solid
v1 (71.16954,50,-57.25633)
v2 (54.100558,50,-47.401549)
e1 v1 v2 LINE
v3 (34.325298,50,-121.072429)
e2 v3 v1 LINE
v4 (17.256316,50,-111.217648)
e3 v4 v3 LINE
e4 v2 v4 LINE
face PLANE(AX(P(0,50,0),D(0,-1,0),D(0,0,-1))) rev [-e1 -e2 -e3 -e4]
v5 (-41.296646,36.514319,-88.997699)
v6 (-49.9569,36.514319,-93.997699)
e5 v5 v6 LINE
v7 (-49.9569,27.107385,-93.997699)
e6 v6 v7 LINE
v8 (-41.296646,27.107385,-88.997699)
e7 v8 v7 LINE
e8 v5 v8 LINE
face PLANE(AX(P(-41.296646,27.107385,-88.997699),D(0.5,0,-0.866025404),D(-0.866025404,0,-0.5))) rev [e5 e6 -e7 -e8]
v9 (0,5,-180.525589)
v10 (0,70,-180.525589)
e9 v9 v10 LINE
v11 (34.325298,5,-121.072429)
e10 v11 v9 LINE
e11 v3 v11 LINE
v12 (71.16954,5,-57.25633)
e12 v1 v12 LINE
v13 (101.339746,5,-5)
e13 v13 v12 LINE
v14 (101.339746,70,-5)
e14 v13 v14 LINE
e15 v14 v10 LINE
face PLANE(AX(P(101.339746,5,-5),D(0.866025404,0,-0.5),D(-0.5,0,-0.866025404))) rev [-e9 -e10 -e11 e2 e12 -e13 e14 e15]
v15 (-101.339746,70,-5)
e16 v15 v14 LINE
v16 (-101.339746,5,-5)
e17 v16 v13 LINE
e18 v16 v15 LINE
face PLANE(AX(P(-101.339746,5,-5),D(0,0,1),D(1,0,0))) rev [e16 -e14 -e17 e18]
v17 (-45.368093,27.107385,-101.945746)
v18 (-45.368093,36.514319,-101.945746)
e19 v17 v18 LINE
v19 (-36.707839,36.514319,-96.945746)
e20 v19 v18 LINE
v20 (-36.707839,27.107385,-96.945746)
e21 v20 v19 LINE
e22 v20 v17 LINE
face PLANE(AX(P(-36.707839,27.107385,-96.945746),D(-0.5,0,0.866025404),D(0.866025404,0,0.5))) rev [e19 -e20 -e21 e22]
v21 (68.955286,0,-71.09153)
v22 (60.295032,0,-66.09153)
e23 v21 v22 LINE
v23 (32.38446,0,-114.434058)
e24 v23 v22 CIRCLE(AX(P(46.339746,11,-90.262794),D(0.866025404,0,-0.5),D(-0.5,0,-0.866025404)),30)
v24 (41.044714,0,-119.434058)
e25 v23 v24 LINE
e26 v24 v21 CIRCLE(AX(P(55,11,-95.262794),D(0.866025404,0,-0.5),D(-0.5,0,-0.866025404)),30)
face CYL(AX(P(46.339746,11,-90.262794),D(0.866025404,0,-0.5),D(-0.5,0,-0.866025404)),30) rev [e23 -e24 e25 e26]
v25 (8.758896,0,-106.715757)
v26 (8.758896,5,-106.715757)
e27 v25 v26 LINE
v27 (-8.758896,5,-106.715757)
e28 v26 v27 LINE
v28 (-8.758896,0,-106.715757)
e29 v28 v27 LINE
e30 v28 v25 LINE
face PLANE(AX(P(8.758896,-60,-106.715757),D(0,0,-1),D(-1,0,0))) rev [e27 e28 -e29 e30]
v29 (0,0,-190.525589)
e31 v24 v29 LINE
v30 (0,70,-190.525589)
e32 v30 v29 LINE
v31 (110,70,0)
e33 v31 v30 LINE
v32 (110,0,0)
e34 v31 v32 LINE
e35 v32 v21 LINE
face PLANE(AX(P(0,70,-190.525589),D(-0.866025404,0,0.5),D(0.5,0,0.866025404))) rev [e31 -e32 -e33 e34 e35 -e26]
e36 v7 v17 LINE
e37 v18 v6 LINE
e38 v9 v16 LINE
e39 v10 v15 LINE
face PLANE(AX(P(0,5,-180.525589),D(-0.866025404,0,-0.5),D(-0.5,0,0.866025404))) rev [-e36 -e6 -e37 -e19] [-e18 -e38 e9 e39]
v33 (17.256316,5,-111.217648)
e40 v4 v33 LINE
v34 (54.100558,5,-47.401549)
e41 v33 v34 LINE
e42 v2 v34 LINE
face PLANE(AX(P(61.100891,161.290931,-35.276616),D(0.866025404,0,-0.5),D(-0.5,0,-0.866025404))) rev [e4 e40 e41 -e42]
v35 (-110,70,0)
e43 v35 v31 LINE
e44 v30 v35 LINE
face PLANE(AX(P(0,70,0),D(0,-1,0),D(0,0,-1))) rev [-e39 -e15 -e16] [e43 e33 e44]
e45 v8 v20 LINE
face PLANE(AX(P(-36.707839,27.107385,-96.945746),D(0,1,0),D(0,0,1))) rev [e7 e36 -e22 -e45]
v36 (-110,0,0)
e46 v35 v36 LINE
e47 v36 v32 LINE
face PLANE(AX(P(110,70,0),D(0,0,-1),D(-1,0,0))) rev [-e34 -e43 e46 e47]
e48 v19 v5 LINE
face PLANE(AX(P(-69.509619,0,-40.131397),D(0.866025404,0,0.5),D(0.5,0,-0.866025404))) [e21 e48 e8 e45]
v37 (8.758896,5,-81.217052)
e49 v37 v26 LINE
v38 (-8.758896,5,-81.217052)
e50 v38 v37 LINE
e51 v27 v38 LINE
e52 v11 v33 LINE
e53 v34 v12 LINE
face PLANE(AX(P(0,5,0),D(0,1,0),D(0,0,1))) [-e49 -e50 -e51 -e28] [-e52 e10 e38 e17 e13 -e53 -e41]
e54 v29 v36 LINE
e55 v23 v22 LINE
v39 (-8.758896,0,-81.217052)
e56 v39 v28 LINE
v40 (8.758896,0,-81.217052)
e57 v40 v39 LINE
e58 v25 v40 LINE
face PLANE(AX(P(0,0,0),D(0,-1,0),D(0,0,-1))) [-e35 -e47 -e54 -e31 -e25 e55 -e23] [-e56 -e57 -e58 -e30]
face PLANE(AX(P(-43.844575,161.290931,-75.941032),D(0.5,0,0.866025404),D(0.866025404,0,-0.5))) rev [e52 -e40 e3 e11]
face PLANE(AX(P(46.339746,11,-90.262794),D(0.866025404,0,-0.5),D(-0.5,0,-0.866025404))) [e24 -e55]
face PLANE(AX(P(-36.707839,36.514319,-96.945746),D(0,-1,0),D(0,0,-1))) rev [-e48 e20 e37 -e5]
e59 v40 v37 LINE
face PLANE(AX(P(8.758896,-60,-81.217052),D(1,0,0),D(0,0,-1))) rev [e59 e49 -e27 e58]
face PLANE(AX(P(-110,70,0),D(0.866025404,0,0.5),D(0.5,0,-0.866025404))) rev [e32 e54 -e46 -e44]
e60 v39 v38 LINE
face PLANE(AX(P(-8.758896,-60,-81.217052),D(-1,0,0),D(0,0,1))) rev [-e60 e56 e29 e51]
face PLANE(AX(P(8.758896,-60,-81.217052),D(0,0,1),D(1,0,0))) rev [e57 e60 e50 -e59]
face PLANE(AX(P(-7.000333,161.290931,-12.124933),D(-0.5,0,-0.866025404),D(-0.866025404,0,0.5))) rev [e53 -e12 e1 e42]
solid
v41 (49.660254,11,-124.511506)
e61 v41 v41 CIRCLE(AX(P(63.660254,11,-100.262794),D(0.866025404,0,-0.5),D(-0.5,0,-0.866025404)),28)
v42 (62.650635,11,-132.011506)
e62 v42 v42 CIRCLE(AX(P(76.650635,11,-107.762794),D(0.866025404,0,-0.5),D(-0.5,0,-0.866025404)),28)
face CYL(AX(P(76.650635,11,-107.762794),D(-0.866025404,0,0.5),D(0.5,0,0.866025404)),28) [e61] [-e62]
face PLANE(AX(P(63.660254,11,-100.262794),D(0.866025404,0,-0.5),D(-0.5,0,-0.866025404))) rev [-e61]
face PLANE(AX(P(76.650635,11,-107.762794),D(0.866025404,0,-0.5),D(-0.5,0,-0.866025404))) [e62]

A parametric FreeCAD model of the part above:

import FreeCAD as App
import Part
import Sketcher

V = App.Vector
Q = App.Units.Quantity

doc = App.newDocument("Part")
body = doc.addObject("PartDesign::Body", "Body")

# Sketch on XZ plane
sketch1 = body.newObject("Sketcher::SketchObject", "Sketch")
sketch1.AttachmentSupport = (doc.getObject("XZ_Plane"), [""])
sketch1.MapMode = "FlatFace"
sketch1.addGeometry([
    Part.LineSegment(V(-110, 0, 0), V(110, 0, 0)),
    Part.LineSegment(V(110, 0, 0), V(0, -191, 0)),
    Part.LineSegment(V(0, -191, 0), V(-110, 0, 0)),
], False)
sketch1.addConstraint([
    Sketcher.Constraint("Coincident", 0, 2, 1, 1),
    Sketcher.Constraint("Coincident", 1, 2, 2, 1),
    Sketcher.Constraint("Coincident", 2, 2, 0, 1),
    Sketcher.Constraint("Horizontal", 0),
    Sketcher.Constraint("Symmetric", 0, 2, 2, 2, -1, 1),
    Sketcher.Constraint("PointOnObject", 1, 2, -2),
    Sketcher.Constraint("DistanceX", 0, 1, 0, 2, Q("220 mm")),
    Sketcher.Constraint("Angle", 1, Q("-120 deg")),
])
pad1 = body.newObject("PartDesign::Pad", "Pad")
pad1.Profile = sketch1
pad1.Length = 70
pad1.Reversed = True

# Sketch on XZ plane
sketch2 = body.newObject("Sketcher::SketchObject", "Sketch001")
sketch2.AttachmentSupport = (doc.getObject("XZ_Plane"), [""])
sketch2.MapMode = "FlatFace"
sketch2.AttachmentOffset = App.Placement(V(0, 0, -70), App.Rotation())
sketch2.addGeometry([
    Part.LineSegment(V(-101, -5, 0), V(101, -5, 0)),
    Part.LineSegment(V(101, -5, 0), V(0, -181, 0)),
    Part.LineSegment(V(0, -181, 0), V(-101, -5, 0)),
], False)
sketch2.addConstraint([
    Sketcher.Constraint("Coincident", 0, 2, 1, 1),
    Sketcher.Constraint("Coincident", 1, 2, 2, 1),
    Sketcher.Constraint("Coincident", 2, 2, 0, 1),
    Sketcher.Constraint("Horizontal", 0),
    Sketcher.Constraint("PointOnObject", 1, 2, -2),
    Sketcher.Constraint("Equal", 1, 2),
    Sketcher.Constraint("Angle", 1, Q("-120 deg")),
    Sketcher.Constraint("DistanceY", 0, 2, -1, 1, Q("5 mm")),
    Sketcher.Constraint("DistanceX", 0, 1, 0, 2, Q("202.679492 mm")),
])
pocket1 = body.newObject("PartDesign::Pocket", "Pocket")
pocket1.Profile = sketch2
pocket1.Length = 65
pocket1.Reversed = True

# Sketch on an angled plane
sketch3 = body.newObject("Sketcher::SketchObject", "Sketch002")
sketch3.Placement = App.Placement(V(82.5, 0, -47.631397), App.Rotation(V(-0.5, 0, -0.866025404), V(0, 1, 0), V(0.866025404, 0, -0.5), "ZXY"))
sketch3.addGeometry(Part.Circle(V(55, 11, 0), V(0, 0, 1), 2), False)
sketch3.addConstraint([
    Sketcher.Constraint("Diameter", 0, Q("4 mm")),
    Sketcher.Constraint("DistanceX", -1, 1, 0, 3, Q("55 mm")),
    Sketcher.Constraint("DistanceY", -1, 1, 0, 3, Q("11 mm")),
])
pocket2 = body.newObject("PartDesign::Pocket", "Pocket001")
pocket2.Profile = sketch3
pocket2.Length = 65

# Sketch on XZ plane
sketch4 = body.newObject("Sketcher::SketchObject", "Sketch003")
sketch4.AttachmentSupport = (doc.getObject("XZ_Plane"), [""])
sketch4.MapMode = "FlatFace"
sketch4.AttachmentOffset = App.Placement(V(0, 0, -5), App.Rotation())
sketch4.addGeometry([
    Part.LineSegment(V(-9, -107, 0), V(-9, -81, 0)),
    Part.LineSegment(V(-9, -81, 0), V(9, -81, 0)),
    Part.LineSegment(V(9, -81, 0), V(9, -107, 0)),
    Part.LineSegment(V(9, -107, 0), V(-9, -107, 0)),
], False)
sketch4.addConstraint([
    Sketcher.Constraint("Coincident", 0, 2, 1, 1),
    Sketcher.Constraint("Coincident", 1, 2, 2, 1),
    Sketcher.Constraint("Coincident", 2, 2, 3, 1),
    Sketcher.Constraint("Coincident", 3, 2, 0, 1),
    Sketcher.Constraint("Vertical", 0),
    Sketcher.Constraint("Horizontal", 1),
    Sketcher.Constraint("Vertical", 2),
    Sketcher.Constraint("Horizontal", 3),
    Sketcher.Constraint("DistanceX", 1, 1, 1, 2, Q("17.517792 mm")),
    Sketcher.Constraint("DistanceY", 0, 1, 0, 2, Q("25.498705 mm")),
    Sketcher.Constraint("DistanceX", 0, 2, -1, 1, Q("8.758896 mm")),
    Sketcher.Constraint("DistanceY", 0, 2, -1, 1, Q("81.217052 mm")),
])
pocket3 = body.newObject("PartDesign::Pocket", "Pocket002")
pocket3.Profile = sketch4
pocket3.Length = 65
pocket3.Reversed = True

# Sketch on an angled plane
sketch5 = body.newObject("Sketcher::SketchObject", "Sketch004")
sketch5.Placement = App.Placement(V(-78.169873, 0, -45.131397), App.Rotation(V(0.5, 0, -0.866025404), V(0, 1, 0), V(0.866025404, 0, 0.5), "ZXY"))
sketch5.addGeometry([
    Part.LineSegment(V(56, 37, 0), V(56, 27, 0)),
    Part.LineSegment(V(56, 27, 0), V(66, 27, 0)),
    Part.LineSegment(V(66, 27, 0), V(66, 37, 0)),
    Part.LineSegment(V(66, 37, 0), V(56, 37, 0)),
], False)
sketch5.addConstraint([
    Sketcher.Constraint("Coincident", 0, 2, 1, 1),
    Sketcher.Constraint("Coincident", 1, 2, 2, 1),
    Sketcher.Constraint("Coincident", 2, 2, 3, 1),
    Sketcher.Constraint("Coincident", 3, 2, 0, 1),
    Sketcher.Constraint("Vertical", 0),
    Sketcher.Constraint("Horizontal", 1),
    Sketcher.Constraint("Vertical", 2),
    Sketcher.Constraint("Horizontal", 3),
    Sketcher.Constraint("DistanceX", 1, 1, 1, 2, Q("9.177614 mm")),
    Sketcher.Constraint("DistanceY", 0, 2, 0, 1, Q("9.406935 mm")),
    Sketcher.Constraint("DistanceX", -1, 1, 1, 2, Q("65.603559 mm")),
    Sketcher.Constraint("DistanceY", -1, 1, 2, 2, Q("36.514319 mm")),
])
pad2 = body.newObject("PartDesign::Pad", "Pad001")
pad2.Profile = sketch5
pad2.Length = 10

# Sketch on XZ plane
sketch6 = body.newObject("Sketcher::SketchObject", "Sketch005")
sketch6.AttachmentSupport = (doc.getObject("XZ_Plane"), [""])
sketch6.MapMode = "FlatFace"
sketch6.AttachmentOffset = App.Placement(V(0, 0, -5), App.Rotation())
sketch6.addGeometry([
    Part.LineSegment(V(71, -57, 0), V(34, -121, 0)),
    Part.LineSegment(V(34, -121, 0), V(17, -111, 0)),
    Part.LineSegment(V(17, -111, 0), V(54, -47, 0)),
    Part.LineSegment(V(54, -47, 0), V(71, -57, 0)),
], False)
sketch6.addConstraint([
    Sketcher.Constraint("Coincident", 0, 2, 1, 1),
    Sketcher.Constraint("Coincident", 1, 2, 2, 1),
    Sketcher.Constraint("Coincident", 2, 2, 3, 1),
    Sketcher.Constraint("Coincident", 3, 2, 0, 1),
    Sketcher.Constraint("Perpendicular", 0, 1),
    Sketcher.Constraint("Perpendicular", 1, 2),
    Sketcher.Constraint("Perpendicular", 2, 3),
    Sketcher.Constraint("Angle", 0, Q("-120 deg")),
    Sketcher.Constraint("DistanceY", 1, 2, 2, 2, Q("63.816099 mm")),
    Sketcher.Constraint("DistanceY", 0, 2, -1, 1, Q("121.072429 mm")),
    Sketcher.Constraint("DistanceY", 2, 2, -1, 1, Q("47.401549 mm")),
    Sketcher.Constraint("DistanceX", -1, 1, 3, 2, Q("71.16954 mm")),
])
pad3 = body.newObject("PartDesign::Pad", "Pad002")
pad3.Profile = sketch6
pad3.Length = 45
pad3.Reversed = True

# Sketch on an angled plane
sketch7 = body.newObject("Sketcher::SketchObject", "Sketch006")
sketch7.Placement = App.Placement(V(82.5, 0, -47.631397), App.Rotation(V(-0.5, 0, -0.866025404), V(0, 1, 0), V(0.866025404, 0, -0.5), "ZXY"))
sketch7.addGeometry(Part.Circle(V(55, 11, 0), V(0, 0, 1), 30), False)
sketch7.addConstraint([
    Sketcher.Constraint("Diameter", 0, Q("60 mm")),
    Sketcher.Constraint("DistanceX", -1, 1, 0, 3, Q("55 mm")),
    Sketcher.Constraint("DistanceY", -1, 1, 0, 3, Q("11 mm")),
])
pocket4 = body.newObject("PartDesign::Pocket", "Pocket003")
pocket4.Profile = sketch7
pocket4.Length = 10
body2 = doc.addObject("PartDesign::Body", "Body001")

# Sketch on an angled plane
sketch8 = body2.newObject("Sketcher::SketchObject", "Sketch007")
sketch8.Placement = App.Placement(V(91.160254, 0, -52.631397), App.Rotation(V(-0.5, 0, -0.866025404), V(0, 1, 0), V(0.866025404, 0, -0.5), "ZXY"))
sketch8.addGeometry(Part.Circle(V(55, 11, 0), V(0, 0, 1), 28), False)
sketch8.addConstraint([
    Sketcher.Constraint("Diameter", 0, Q("56 mm")),
    Sketcher.Constraint("DistanceX", -1, 1, 0, 3, Q("55 mm")),
    Sketcher.Constraint("DistanceY", -1, 1, 0, 3, Q("11 mm")),
])
pad4 = body2.newObject("PartDesign::Pad", "Pad003")
pad4.Profile = sketch8
pad4.Length = 15

doc.recompute()
